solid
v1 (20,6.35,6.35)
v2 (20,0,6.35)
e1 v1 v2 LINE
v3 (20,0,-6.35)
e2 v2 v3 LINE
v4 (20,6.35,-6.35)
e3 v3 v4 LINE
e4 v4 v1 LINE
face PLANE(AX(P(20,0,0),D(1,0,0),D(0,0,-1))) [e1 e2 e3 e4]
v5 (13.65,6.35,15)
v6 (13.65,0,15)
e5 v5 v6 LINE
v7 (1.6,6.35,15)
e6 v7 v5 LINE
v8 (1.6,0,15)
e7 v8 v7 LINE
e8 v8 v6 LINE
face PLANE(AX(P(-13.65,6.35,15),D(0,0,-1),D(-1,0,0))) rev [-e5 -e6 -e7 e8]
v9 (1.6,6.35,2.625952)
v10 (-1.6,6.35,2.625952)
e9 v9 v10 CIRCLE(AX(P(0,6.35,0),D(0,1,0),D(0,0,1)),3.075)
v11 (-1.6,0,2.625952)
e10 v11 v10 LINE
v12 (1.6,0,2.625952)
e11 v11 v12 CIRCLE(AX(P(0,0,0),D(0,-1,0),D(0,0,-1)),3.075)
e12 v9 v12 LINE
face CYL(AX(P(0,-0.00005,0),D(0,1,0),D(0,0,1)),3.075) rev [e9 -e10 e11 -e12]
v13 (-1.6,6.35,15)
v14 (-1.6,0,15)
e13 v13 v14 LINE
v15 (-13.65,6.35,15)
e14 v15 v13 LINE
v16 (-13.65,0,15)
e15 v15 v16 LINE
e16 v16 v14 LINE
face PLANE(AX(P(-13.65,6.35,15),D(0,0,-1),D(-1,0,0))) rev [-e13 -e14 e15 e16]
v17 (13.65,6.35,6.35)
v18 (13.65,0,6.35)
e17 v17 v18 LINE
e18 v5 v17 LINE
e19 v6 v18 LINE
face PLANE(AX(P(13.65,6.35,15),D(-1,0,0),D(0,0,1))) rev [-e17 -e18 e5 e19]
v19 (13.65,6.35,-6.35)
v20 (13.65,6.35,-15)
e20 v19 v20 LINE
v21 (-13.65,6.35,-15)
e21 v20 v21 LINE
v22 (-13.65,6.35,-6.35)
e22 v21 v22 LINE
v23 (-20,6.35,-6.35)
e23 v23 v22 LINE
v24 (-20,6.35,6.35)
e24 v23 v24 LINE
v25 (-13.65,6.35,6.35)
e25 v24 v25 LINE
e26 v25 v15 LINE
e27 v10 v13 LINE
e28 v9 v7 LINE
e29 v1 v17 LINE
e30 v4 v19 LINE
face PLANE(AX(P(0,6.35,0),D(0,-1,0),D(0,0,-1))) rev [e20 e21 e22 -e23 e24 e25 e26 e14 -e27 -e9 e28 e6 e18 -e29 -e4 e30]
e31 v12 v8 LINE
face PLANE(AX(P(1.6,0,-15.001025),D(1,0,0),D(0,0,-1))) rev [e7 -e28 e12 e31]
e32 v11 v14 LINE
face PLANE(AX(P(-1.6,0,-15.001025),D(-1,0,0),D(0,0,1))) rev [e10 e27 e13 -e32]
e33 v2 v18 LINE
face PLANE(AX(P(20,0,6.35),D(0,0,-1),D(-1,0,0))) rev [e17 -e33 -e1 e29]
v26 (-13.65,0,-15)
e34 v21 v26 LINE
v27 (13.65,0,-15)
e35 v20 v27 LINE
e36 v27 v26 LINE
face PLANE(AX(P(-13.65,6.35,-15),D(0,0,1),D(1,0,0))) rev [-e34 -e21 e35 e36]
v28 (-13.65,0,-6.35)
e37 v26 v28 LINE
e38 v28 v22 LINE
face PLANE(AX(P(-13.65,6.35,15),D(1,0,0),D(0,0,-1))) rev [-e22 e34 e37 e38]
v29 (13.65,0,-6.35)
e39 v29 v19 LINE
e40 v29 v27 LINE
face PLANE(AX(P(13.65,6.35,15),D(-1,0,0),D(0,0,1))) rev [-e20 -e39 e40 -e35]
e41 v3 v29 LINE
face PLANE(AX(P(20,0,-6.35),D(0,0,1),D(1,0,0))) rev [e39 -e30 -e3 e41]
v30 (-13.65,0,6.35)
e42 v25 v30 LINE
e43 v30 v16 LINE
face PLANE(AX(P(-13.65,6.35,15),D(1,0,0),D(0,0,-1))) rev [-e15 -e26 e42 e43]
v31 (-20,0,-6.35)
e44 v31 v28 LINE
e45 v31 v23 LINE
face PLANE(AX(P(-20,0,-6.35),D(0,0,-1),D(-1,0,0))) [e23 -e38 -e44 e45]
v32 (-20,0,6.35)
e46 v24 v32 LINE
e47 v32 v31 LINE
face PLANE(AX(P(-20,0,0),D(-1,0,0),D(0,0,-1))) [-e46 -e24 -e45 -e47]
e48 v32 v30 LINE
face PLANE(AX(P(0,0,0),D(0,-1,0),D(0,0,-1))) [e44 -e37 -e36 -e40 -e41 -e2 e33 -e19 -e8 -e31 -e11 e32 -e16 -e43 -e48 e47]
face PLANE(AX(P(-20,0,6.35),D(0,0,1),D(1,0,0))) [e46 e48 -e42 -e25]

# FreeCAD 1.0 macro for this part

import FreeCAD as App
import Part
import Sketcher

doc = App.newDocument("Part")
body = doc.addObject("PartDesign::Body", "Body")

# Sketch on XZ plane
sketch1 = doc.addObject("Sketcher::SketchObject", "Sketch")
body.addObject(sketch1)
sketch1.AttachmentSupport = (doc.XZ_Plane, [""])
sketch1.MapMode = "FlatFace"
sketch1.addGeometry([
    Part.LineSegment(App.Vector(-14, -15, 0), App.Vector(-14, 15, 0)),
    Part.LineSegment(App.Vector(-14, 15, 0), App.Vector(14, 15, 0)),
    Part.LineSegment(App.Vector(14, 15, 0), App.Vector(14, -15, 0)),
    Part.LineSegment(App.Vector(14, -15, 0), App.Vector(-14, -15, 0)),
], False)
sketch1.addConstraint([
    Sketcher.Constraint("Coincident", 0, 2, 1, 1),
    Sketcher.Constraint("Coincident", 1, 2, 2, 1),
    Sketcher.Constraint("Coincident", 2, 2, 3, 1),
    Sketcher.Constraint("Coincident", 3, 2, 0, 1),
    Sketcher.Constraint("Vertical", 0),
    Sketcher.Constraint("Horizontal", 1),
    Sketcher.Constraint("Vertical", 2),
    Sketcher.Constraint("Horizontal", 3),
    Sketcher.Constraint("Symmetric", 0, 2, 2, 2, -1, 1),
    Sketcher.Constraint("DistanceY", 0, 1, 0, 2, 30.0),
    Sketcher.Constraint("DistanceX", 1, 1, 1, 2, 27.3),
])
pad1 = doc.addObject("PartDesign::Pad", "Pad")
body.addObject(pad1)
pad1.Profile = sketch1
pad1.Length = 6.35
pad1.Reversed = True

# Sketch on YZ plane
sketch2 = doc.addObject("Sketcher::SketchObject", "Sketch001")
body.addObject(sketch2)
sketch2.AttachmentSupport = (doc.YZ_Plane, [""])
sketch2.MapMode = "FlatFace"
sketch2.AttachmentOffset = App.Placement(App.Vector(0, 0, 13.65), App.Rotation())
sketch2.addGeometry([
    Part.LineSegment(App.Vector(6, 6, 0), App.Vector(0, 6, 0)),
    Part.LineSegment(App.Vector(0, 6, 0), App.Vector(0, -6, 0)),
    Part.LineSegment(App.Vector(0, -6, 0), App.Vector(6, -6, 0)),
    Part.LineSegment(App.Vector(6, -6, 0), App.Vector(6, 6, 0)),
], False)
sketch2.addConstraint([
    Sketcher.Constraint("Coincident", 0, 2, 1, 1),
    Sketcher.Constraint("Coincident", 1, 2, 2, 1),
    Sketcher.Constraint("Coincident", 2, 2, 3, 1),
    Sketcher.Constraint("Coincident", 3, 2, 0, 1),
    Sketcher.Constraint("Horizontal", 0),
    Sketcher.Constraint("Vertical", 1),
    Sketcher.Constraint("Horizontal", 2),
    Sketcher.Constraint("Vertical", 3),
    Sketcher.Constraint("Symmetric", 0, 2, 1, 2, -1, 1),
    Sketcher.Constraint("DistanceY", 1, 2, 1, 1, 12.7),
    Sketcher.Constraint("DistanceX", 0, 2, 0, 1, 6.35),
])
pad2 = doc.addObject("PartDesign::Pad", "Pad001")
body.addObject(pad2)
pad2.Profile = sketch2
pad2.Length = 6.35
doc.recompute()

mirrored = doc.addObject("PartDesign::Mirrored", "Mirrored")
body.addObject(mirrored)
mirrored.Originals = [pad2]
mirrored.MirrorPlane = (doc.YZ_Plane, [""])
body.Tip = mirrored

# Sketch on XZ plane
sketch3 = doc.addObject("Sketcher::SketchObject", "Sketch002")
body.addObject(sketch3)
sketch3.AttachmentSupport = (doc.XZ_Plane, [""])
sketch3.MapMode = "FlatFace"
sketch3.AttachmentOffset = App.Placement(App.Vector(0, 0, -6.35), App.Rotation())
sketch3.addGeometry(Part.Circle(App.Vector(0, 0, 0), App.Vector(0, 0, 1), 3.1), False)
sketch3.addConstraint([
    Sketcher.Constraint("Coincident", 0, 3, -1, 1),
    Sketcher.Constraint("Diameter", 0, 6.15),
])
pocket1 = doc.addObject("PartDesign::Pocket", "Pocket")
body.addObject(pocket1)
pocket1.Profile = sketch3
pocket1.Type = "ThroughAll"
pocket1.Reversed = True

# Sketch on XY plane
sketch4 = doc.addObject("Sketcher::SketchObject", "Sketch003")
body.addObject(sketch4)
sketch4.AttachmentSupport = (doc.XY_Plane, [""])
sketch4.MapMode = "FlatFace"
sketch4.AttachmentOffset = App.Placement(App.Vector(0, 0, 15), App.Rotation())
sketch4.addGeometry([
    Part.LineSegment(App.Vector(-1.6, 6.3, 0), App.Vector(-1.6, 0, 0)),
    Part.LineSegment(App.Vector(-1.6, 0, 0), App.Vector(1.6, 0, 0)),
    Part.LineSegment(App.Vector(1.6, 0, 0), App.Vector(1.6, 6.3, 0)),
    Part.LineSegment(App.Vector(1.6, 6.3, 0), App.Vector(-1.6, 6.3, 0)),
], False)
sketch4.addConstraint([
    Sketcher.Constraint("Coincident", 0, 2, 1, 1),
    Sketcher.Constraint("Coincident", 1, 2, 2, 1),
    Sketcher.Constraint("Coincident", 2, 2, 3, 1),
    Sketcher.Constraint("Coincident", 3, 2, 0, 1),
    Sketcher.Constraint("Vertical", 0),
    Sketcher.Constraint("Horizontal", 1),
    Sketcher.Constraint("Vertical", 2),
    Sketcher.Constraint("Horizontal", 3),
    Sketcher.Constraint("Symmetric", 0, 2, 1, 2, -1, 1),
    Sketcher.Constraint("DistanceX", 1, 1, 1, 2, 3.2),
    Sketcher.Constraint("DistanceY", 0, 2, 0, 1, 6.35),
])
pocket2 = doc.addObject("PartDesign::Pocket", "Pocket001")
body.addObject(pocket2)
pocket2.Profile = sketch4
pocket2.Type = "UpToFirst"

doc.recompute()
